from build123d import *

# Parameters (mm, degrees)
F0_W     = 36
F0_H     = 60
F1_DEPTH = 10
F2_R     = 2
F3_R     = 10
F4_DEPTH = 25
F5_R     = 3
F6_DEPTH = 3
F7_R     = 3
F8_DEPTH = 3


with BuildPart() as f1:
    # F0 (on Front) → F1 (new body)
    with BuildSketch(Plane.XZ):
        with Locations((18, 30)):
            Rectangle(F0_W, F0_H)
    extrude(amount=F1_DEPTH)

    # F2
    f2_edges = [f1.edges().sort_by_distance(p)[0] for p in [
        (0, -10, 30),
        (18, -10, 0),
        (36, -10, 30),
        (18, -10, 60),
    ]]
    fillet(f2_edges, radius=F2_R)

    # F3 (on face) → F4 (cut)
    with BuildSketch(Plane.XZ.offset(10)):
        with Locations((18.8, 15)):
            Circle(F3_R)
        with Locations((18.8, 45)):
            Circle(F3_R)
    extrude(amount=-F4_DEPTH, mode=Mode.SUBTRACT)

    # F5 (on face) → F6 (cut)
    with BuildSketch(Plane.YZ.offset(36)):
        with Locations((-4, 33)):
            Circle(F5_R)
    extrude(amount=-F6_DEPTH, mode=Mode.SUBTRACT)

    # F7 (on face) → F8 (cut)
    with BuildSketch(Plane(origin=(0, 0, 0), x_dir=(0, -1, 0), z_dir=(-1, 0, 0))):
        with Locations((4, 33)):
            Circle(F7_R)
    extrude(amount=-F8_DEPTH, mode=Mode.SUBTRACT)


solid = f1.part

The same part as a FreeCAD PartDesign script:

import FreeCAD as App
import Part
import Sketcher
from FreeCAD import Vector
Q = App.Units.Quantity


def edges_at(feature, points):
    """Names of the edges that pass closest to the given points."""
    edges = feature.Shape.Edges
    near = lambda p: min(range(len(edges)), key=lambda i: edges[i].distToShape(Part.Vertex(*p))[0])
    return sorted({f"Edge{near(p) + 1}" for p in points})


def add_polygon(sketch, points):
    """Adds a closed chain of lines whose ends are joined by coincident constraints."""
    first, n = sketch.GeometryCount, len(points)
    for a, b in zip(points, points[1:] + points[:1]):
        sketch.addGeometry(Part.LineSegment(App.Vector(*a, 0), App.Vector(*b, 0)), False)
    for i in range(n):
        sketch.addConstraint(Sketcher.Constraint("Coincident", first + i, 2, first + (i + 1) % n, 1))

doc = App.newDocument("Part")
body = doc.addObject("PartDesign::Body", "Body")

sketch1 = body.newObject("Sketcher::SketchObject", "Sketch")
sketch1.AttachmentSupport = (doc.getObject("XZ_Plane"), [""])
sketch1.MapMode = "FlatFace"
add_polygon(sketch1, [(0, 60), (0, 0), (36, 0), (36, 60)])
sketch1.addConstraint(Sketcher.Constraint("Vertical", 0))
sketch1.addConstraint(Sketcher.Constraint("Horizontal", 1))
sketch1.addConstraint(Sketcher.Constraint("Vertical", 2))
sketch1.addConstraint(Sketcher.Constraint("Horizontal", 3))
sketch1.addConstraint(Sketcher.Constraint("Coincident", 0, 2, -1, 1))
sketch1.addConstraint(Sketcher.Constraint("DistanceX", 1, 1, 1, 2, Q("36 mm")))
sketch1.addConstraint(Sketcher.Constraint("DistanceY", 0, 2, 0, 1, Q("60 mm")))
pad1 = body.newObject("PartDesign::Pad", "Pad")
pad1.Profile = sketch1
pad1.Length = 10
doc.recompute()

fillet = body.newObject("PartDesign::Fillet", "Fillet")
fillet.Base = (pad1, edges_at(pad1, [
    (0, -10, 30),
    (18, -10, 0),
    (36, -10, 30),
    (18, -10, 60),
]))
fillet.Radius = 2

sketch2 = body.newObject("Sketcher::SketchObject", "Sketch001")
sketch2.AttachmentSupport = (doc.getObject("XZ_Plane"), [""])
sketch2.MapMode = "FlatFace"
sketch2.AttachmentOffset = App.Placement(Vector(0, 0, 10), App.Rotation())
sketch2.addGeometry(Part.Circle(Vector(19, 15, 0), Vector(0, 0, 1), 10), False)
sketch2.addGeometry(Part.Circle(Vector(19, 45, 0), Vector(0, 0, 1), 10), False)
sketch2.addConstraint(Sketcher.Constraint("Equal", 0, 1))
sketch2.addConstraint(Sketcher.Constraint("Vertical", 0, 3, 1, 3))
sketch2.addConstraint(Sketcher.Constraint("Diameter", 0, Q("20 mm")))
sketch2.addConstraint(Sketcher.Constraint("DistanceY", -1, 1, 0, 3, Q("15 mm")))
sketch2.addConstraint(Sketcher.Constraint("DistanceY", -1, 1, 1, 3, Q("45 mm")))
sketch2.addConstraint(Sketcher.Constraint("DistanceX", -1, 1, 0, 3, Q("18.8 mm")))
pocket1 = body.newObject("PartDesign::Pocket", "Pocket")
pocket1.Profile = sketch2
pocket1.Length = 25

sketch3 = body.newObject("Sketcher::SketchObject", "Sketch002")
sketch3.AttachmentSupport = (doc.getObject("YZ_Plane"), [""])
sketch3.MapMode = "FlatFace"
sketch3.AttachmentOffset = App.Placement(Vector(0, 0, 36), App.Rotation())
sketch3.addGeometry(Part.Circle(Vector(-4, 33, 0), Vector(0, 0, 1), 3), False)
sketch3.addConstraint(Sketcher.Constraint("Diameter", 0, Q("6 mm")))
sketch3.addConstraint(Sketcher.Constraint("DistanceX", 0, 3, -1, 1, Q("4 mm")))
sketch3.addConstraint(Sketcher.Constraint("DistanceY", -1, 1, 0, 3, Q("33 mm")))
pocket2 = body.newObject("PartDesign::Pocket", "Pocket001")
pocket2.Profile = sketch3
pocket2.Length = 3

sketch4 = body.newObject("Sketcher::SketchObject", "Sketch003")
sketch4.AttachmentSupport = (doc.getObject("YZ_Plane"), [""])
sketch4.MapMode = "FlatFace"
sketch4.addGeometry(Part.Circle(Vector(-4, 33, 0), Vector(0, 0, 1), 3), False)
sketch4.addConstraint(Sketcher.Constraint("Diameter", 0, Q("6 mm")))
sketch4.addConstraint(Sketcher.Constraint("DistanceX", 0, 3, -1, 1, Q("4 mm")))
sketch4.addConstraint(Sketcher.Constraint("DistanceY", -1, 1, 0, 3, Q("33 mm")))
pocket3 = body.newObject("PartDesign::Pocket", "Pocket002")
pocket3.Profile = sketch4
pocket3.Length = 3
pocket3.Reversed = True

doc.recompute()
